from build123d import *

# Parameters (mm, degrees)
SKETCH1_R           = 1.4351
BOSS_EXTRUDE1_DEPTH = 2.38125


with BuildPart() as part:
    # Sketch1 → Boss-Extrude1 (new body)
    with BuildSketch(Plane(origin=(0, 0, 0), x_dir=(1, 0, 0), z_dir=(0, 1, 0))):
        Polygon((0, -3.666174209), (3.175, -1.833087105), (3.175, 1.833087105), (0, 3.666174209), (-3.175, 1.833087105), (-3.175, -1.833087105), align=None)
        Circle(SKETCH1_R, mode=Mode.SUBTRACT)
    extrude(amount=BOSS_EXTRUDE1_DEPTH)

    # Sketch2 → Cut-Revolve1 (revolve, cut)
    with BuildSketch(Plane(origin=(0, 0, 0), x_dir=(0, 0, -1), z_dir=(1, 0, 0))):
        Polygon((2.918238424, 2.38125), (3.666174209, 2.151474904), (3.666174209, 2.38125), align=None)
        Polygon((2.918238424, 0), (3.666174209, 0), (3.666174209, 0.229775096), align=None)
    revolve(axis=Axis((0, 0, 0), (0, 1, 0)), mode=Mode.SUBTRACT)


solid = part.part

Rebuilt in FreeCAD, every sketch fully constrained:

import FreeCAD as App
import Part
import Sketcher
Q = App.Units.Quantity

doc = App.newDocument("Part")
body = doc.addObject("PartDesign::Body", "Body")

sketch1 = doc.addObject("Sketcher::SketchObject", "Sketch")
body.addObject(sketch1)
sketch1.AttachmentSupport = (doc.XZ_Plane, [""])
sketch1.MapMode = "FlatFace"
sketch1.addGeometry([
    Part.LineSegment(App.Vector(0, 3.666174, 0), App.Vector(3.175, 1.833087, 0)),
    Part.LineSegment(App.Vector(3.175, 1.833087, 0), App.Vector(3.175, -1.833087, 0)),
    Part.LineSegment(App.Vector(3.175, -1.833087, 0), App.Vector(0, -3.666174, 0)),
    Part.LineSegment(App.Vector(0, -3.666174, 0), App.Vector(-3.175, -1.833087, 0)),
    Part.LineSegment(App.Vector(-3.175, -1.833087, 0), App.Vector(-3.175, 1.833087, 0)),
    Part.LineSegment(App.Vector(-3.175, 1.833087, 0), App.Vector(0, 3.666174, 0)),
    Part.Circle(App.Vector(0, 0, 0), App.Vector(0, 0, 1), 1.4351),
], False)
sketch1.addConstraint([
    Sketcher.Constraint("Coincident", 0, 2, 1, 1),
    Sketcher.Constraint("Coincident", 1, 2, 2, 1),
    Sketcher.Constraint("Coincident", 2, 2, 3, 1),
    Sketcher.Constraint("Coincident", 3, 2, 4, 1),
    Sketcher.Constraint("Coincident", 4, 2, 5, 1),
    Sketcher.Constraint("Coincident", 5, 2, 0, 1),
    Sketcher.Constraint("Vertical", 1),
    Sketcher.Constraint("Vertical", 4),
    Sketcher.Constraint("Coincident", 6, 3, -1, 1),
    Sketcher.Constraint("Symmetric", 0, 2, 3, 2, -1, 1),
    Sketcher.Constraint("Symmetric", 2, 2, 5, 2, -1, 1),
    Sketcher.Constraint("PointOnObject", 2, 2, -2),
    Sketcher.Constraint("Parallel", 2, 5),
    Sketcher.Constraint("Horizontal", 1, 2, 3, 2),
    Sketcher.Constraint("Diameter", 6, Q("0.113 in")),
    Sketcher.Constraint("Angle", 0, Q("-30 deg")),
    Sketcher.Constraint("DistanceX", 3, 2, 1, 2, Q("0.25 in")),
    Sketcher.Constraint("DistanceY", 1, 2, 1, 1, Q("3.666174 mm")),
])
pad1 = doc.addObject("PartDesign::Pad", "Pad")
body.addObject(pad1)
pad1.Profile = sketch1
pad1.Length = Q("0.09375 in")
pad1.Reversed = True

sketch2 = doc.addObject("Sketcher::SketchObject", "Sketch001")
body.addObject(sketch2)
sketch2.AttachmentSupport = (doc.YZ_Plane, [""])
sketch2.MapMode = "FlatFace"
sketch2.addGeometry([
    Part.LineSegment(App.Vector(2.38125, -2.918238, 0), App.Vector(2.151475, -3.666174, 0)),
    Part.LineSegment(App.Vector(2.151475, -3.666174, 0), App.Vector(2.38125, -3.666174, 0)),
    Part.LineSegment(App.Vector(2.38125, -3.666174, 0), App.Vector(2.38125, -2.918238, 0)),
    Part.LineSegment(App.Vector(0, -2.918238, 0), App.Vector(0, -3.666174, 0)),
    Part.LineSegment(App.Vector(0, -3.666174, 0), App.Vector(0.229775, -3.666174, 0)),
    Part.LineSegment(App.Vector(0.229775, -3.666174, 0), App.Vector(0, -2.918238, 0)),
], False)
sketch2.addConstraint([
    Sketcher.Constraint("Coincident", 0, 2, 1, 1),
    Sketcher.Constraint("Coincident", 1, 2, 2, 1),
    Sketcher.Constraint("Coincident", 2, 2, 0, 1),
    Sketcher.Constraint("Coincident", 3, 2, 4, 1),
    Sketcher.Constraint("Coincident", 4, 2, 5, 1),
    Sketcher.Constraint("Coincident", 5, 2, 3, 1),
    Sketcher.Constraint("Horizontal", 1),
    Sketcher.Constraint("Vertical", 2),
    Sketcher.Constraint("Vertical", 3),
    Sketcher.Constraint("Horizontal", 4),
    Sketcher.Constraint("PointOnObject", 3, 2, -2),
    Sketcher.Constraint("Horizontal", 1, 2, 3, 2),
    Sketcher.Constraint("Horizontal", 2, 2, 5, 2),
    Sketcher.Constraint("Equal", 1, 4),
    Sketcher.Constraint("DistanceX", -1, 1, 1, 2, Q("0.09375 in")),
    Sketcher.Constraint("DistanceX", 4, 2, 0, 2, Q("1.9217 mm")),
    Sketcher.Constraint("DistanceY", 2, 1, 2, 2, Q("0.747936 mm")),
    Sketcher.Constraint("DistanceY", 2, 2, -1, 1, Q("2.918238 mm")),
])
groove = doc.addObject("PartDesign::Groove", "Groove")
body.addObject(groove)
groove.Profile = sketch2
groove.ReferenceAxis = (sketch2, ["H_Axis"])
groove.Angle = 360

doc.recompute()
